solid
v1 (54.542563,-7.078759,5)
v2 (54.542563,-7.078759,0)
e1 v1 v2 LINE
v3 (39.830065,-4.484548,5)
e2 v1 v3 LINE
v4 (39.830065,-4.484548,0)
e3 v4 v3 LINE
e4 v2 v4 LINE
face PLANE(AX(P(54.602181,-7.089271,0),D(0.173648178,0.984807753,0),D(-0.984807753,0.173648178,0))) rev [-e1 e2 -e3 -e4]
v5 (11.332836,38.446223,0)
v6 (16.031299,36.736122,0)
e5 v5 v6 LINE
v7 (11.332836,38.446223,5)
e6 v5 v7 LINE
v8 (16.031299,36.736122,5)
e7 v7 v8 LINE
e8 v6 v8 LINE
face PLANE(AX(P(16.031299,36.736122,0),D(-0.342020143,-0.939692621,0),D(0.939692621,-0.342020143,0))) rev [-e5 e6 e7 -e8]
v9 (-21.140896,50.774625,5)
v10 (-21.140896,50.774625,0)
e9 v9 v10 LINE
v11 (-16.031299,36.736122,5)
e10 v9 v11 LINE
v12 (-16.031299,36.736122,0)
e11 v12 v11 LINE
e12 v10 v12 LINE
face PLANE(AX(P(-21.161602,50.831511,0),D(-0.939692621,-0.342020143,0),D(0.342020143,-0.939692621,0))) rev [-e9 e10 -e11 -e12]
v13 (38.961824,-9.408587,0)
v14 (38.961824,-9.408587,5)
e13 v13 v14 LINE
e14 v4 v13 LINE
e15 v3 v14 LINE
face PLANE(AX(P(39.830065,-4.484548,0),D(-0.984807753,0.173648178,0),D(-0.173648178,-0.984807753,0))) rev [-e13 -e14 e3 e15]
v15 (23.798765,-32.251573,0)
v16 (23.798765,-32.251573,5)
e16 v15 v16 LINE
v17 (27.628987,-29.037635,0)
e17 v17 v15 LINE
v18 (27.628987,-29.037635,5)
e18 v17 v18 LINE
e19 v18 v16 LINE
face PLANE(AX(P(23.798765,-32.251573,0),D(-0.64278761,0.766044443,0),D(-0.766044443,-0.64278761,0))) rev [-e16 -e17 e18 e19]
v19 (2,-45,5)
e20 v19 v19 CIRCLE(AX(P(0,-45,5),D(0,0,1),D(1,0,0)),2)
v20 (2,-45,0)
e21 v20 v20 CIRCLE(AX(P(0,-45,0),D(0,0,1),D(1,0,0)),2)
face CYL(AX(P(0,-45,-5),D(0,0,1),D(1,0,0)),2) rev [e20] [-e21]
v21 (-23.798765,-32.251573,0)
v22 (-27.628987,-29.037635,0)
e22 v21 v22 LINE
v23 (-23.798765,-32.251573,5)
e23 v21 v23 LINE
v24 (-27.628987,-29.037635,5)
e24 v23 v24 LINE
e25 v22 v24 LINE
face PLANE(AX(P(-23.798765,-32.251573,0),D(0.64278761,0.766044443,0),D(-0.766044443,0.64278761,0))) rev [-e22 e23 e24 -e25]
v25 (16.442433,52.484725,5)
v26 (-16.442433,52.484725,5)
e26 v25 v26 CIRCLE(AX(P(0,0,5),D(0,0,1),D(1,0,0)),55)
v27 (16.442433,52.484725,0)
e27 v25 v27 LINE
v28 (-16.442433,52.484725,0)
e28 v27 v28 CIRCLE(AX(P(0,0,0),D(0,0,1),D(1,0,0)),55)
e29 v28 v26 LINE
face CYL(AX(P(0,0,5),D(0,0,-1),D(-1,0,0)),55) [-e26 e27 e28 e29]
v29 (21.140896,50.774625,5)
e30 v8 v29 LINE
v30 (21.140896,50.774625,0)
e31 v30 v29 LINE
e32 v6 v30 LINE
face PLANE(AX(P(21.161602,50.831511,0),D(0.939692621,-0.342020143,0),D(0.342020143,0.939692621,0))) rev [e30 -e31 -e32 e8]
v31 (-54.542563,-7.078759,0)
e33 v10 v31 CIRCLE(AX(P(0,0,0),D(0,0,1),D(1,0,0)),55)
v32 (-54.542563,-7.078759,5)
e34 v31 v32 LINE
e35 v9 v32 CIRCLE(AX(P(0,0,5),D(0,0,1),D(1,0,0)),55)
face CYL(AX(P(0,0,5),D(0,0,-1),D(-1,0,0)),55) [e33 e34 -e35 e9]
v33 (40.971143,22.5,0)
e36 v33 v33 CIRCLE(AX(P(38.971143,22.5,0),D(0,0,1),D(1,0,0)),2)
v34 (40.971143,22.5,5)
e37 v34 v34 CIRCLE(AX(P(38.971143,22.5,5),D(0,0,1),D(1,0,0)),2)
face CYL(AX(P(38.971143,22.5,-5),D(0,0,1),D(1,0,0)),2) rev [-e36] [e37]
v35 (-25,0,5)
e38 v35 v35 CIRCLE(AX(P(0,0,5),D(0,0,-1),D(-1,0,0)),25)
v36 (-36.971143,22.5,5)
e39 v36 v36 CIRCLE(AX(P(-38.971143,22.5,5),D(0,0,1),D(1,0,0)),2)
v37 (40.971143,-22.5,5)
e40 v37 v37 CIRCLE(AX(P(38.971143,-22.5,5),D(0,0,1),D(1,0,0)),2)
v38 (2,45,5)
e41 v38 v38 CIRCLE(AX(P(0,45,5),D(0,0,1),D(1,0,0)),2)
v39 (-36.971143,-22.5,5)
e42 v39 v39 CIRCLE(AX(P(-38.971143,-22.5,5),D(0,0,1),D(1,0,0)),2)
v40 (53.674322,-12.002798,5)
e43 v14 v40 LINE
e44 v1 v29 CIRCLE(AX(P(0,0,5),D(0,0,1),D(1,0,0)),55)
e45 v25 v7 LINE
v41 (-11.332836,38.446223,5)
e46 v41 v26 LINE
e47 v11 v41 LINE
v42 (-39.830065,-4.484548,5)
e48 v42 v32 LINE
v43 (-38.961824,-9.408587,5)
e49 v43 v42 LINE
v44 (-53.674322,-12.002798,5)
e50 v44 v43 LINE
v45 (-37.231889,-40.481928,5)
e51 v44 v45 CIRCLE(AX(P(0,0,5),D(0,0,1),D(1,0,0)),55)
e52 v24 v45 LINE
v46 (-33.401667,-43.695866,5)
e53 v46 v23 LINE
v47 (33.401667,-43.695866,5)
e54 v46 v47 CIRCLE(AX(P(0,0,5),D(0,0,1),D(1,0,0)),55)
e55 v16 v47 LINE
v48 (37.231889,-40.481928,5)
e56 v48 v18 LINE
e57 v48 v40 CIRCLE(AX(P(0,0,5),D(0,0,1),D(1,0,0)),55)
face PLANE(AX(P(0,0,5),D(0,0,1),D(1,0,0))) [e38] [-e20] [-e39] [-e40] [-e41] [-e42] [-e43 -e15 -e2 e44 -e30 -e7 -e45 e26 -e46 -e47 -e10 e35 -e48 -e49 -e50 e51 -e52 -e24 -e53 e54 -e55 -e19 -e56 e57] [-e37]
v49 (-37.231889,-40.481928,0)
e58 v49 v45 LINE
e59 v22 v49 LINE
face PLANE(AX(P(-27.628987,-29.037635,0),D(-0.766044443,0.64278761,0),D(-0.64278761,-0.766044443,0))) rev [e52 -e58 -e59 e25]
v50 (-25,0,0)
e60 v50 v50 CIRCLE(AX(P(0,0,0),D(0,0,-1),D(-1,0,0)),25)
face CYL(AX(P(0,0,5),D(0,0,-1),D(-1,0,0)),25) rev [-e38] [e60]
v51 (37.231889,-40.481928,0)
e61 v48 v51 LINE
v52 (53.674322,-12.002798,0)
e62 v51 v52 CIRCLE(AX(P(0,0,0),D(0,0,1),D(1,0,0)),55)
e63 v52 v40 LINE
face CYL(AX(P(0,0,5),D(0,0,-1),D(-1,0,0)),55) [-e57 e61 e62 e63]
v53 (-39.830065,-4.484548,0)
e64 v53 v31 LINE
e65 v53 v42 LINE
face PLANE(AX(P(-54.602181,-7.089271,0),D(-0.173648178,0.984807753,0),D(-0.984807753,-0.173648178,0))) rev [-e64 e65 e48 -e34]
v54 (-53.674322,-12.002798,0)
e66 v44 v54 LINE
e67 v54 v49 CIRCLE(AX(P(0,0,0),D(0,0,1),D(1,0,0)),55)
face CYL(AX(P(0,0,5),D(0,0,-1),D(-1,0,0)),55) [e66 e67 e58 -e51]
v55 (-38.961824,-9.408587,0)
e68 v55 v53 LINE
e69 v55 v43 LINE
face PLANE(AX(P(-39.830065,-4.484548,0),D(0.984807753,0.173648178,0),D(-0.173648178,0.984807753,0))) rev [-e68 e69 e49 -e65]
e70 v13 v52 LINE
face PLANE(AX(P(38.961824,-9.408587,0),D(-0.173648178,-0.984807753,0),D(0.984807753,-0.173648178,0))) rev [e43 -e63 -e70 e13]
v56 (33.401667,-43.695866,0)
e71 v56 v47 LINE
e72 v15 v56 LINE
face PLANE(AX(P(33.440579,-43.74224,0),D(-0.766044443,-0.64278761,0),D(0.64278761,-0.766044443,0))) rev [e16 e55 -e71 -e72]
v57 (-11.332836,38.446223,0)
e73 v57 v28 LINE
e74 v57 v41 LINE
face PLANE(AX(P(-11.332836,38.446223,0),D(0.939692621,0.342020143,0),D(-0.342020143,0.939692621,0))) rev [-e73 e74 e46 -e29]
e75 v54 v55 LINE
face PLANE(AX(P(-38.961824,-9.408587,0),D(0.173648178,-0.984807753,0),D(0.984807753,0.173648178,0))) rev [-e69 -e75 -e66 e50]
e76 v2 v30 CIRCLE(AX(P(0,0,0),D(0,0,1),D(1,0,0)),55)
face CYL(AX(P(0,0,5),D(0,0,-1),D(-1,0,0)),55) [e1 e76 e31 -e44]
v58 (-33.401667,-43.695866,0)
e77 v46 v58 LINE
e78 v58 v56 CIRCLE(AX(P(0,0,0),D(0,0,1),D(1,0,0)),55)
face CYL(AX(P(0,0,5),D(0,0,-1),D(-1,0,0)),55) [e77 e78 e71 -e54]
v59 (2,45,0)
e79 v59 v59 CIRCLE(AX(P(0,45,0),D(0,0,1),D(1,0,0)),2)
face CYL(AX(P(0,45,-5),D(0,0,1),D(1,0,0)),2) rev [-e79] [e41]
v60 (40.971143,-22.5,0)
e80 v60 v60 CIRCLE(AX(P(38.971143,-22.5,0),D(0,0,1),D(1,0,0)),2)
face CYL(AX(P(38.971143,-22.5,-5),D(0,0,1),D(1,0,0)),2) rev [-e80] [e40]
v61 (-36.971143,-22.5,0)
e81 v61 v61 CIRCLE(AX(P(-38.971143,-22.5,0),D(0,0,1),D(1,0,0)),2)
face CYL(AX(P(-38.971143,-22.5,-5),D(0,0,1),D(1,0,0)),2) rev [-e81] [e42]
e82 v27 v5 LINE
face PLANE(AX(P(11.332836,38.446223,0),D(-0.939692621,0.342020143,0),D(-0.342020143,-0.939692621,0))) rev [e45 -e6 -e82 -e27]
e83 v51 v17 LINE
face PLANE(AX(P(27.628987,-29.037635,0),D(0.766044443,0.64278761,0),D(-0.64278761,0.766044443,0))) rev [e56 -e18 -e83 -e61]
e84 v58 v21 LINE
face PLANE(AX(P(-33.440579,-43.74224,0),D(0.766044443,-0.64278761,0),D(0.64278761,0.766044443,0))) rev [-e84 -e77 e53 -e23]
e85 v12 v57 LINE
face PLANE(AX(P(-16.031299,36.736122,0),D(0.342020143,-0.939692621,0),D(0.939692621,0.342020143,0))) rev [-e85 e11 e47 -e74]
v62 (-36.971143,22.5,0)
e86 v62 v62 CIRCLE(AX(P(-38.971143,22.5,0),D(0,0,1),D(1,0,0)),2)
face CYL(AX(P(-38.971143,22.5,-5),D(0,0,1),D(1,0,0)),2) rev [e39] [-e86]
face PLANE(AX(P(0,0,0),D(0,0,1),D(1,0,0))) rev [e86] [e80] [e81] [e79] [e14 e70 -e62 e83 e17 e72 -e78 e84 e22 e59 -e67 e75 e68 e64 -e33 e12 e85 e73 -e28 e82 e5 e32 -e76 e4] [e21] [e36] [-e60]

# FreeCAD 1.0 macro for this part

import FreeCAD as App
import Part
import Sketcher

V = App.Vector
Q = App.Units.Quantity


def add_polygon(sketch, points):
    """Adds a closed chain of lines whose ends are joined by coincident constraints."""
    first, n = sketch.GeometryCount, len(points)
    for a, b in zip(points, points[1:] + points[:1]):
        sketch.addGeometry(Part.LineSegment(App.Vector(*a, 0), App.Vector(*b, 0)), False)
    for i in range(n):
        sketch.addConstraint(Sketcher.Constraint("Coincident", first + i, 2, first + (i + 1) % n, 1))

doc = App.newDocument("Part")
body = doc.addObject("PartDesign::Body", "Body")

# Sketch on XY plane
sketch1 = body.newObject("Sketcher::SketchObject", "Sketch")
sketch1.AttachmentSupport = (doc.getObject("XY_Plane"), [""])
sketch1.MapMode = "FlatFace"
sketch1.addGeometry(Part.Circle(V(0, 0, 0), V(0, 0, 1), 55), False)
sketch1.addConstraint([
    Sketcher.Constraint("Coincident", 0, 3, -1, 1),
    Sketcher.Constraint("Diameter", 0, 110.0),
])
pad1 = body.newObject("PartDesign::Pad", "Pad")
pad1.Profile = sketch1
pad1.Length = 5

# Sketch on XY plane
sketch2 = body.newObject("Sketcher::SketchObject", "Sketch001")
sketch2.AttachmentSupport = (doc.getObject("XY_Plane"), [""])
sketch2.MapMode = "FlatFace"
sketch2.AttachmentOffset = App.Placement(V(0, 0, 5), App.Rotation())
add_polygon(sketch2, [(-21.2, 50.8), (-16, 36.7), (-11.3, 38.4), (-16.5, 52.5)])  # lines 0-3
add_polygon(sketch2, [(11.3, 38.4), (16, 36.7), (21.2, 50.8), (16.5, 52.5)])  # lines 4-7
add_polygon(sketch2, [(54.6, -7.1), (39.8, -4.5), (39, -9.4), (53.7, -12)])  # lines 8-11
add_polygon(sketch2, [(37.3, -40.5), (27.6, -29), (23.8, -32.3), (33.4, -43.7)])  # lines 12-15
add_polygon(sketch2, [(-33.4, -43.7), (-23.8, -32.3), (-27.6, -29), (-37.3, -40.5)])  # lines 16-19
add_polygon(sketch2, [(-53.7, -12), (-39, -9.4), (-39.8, -4.5), (-54.6, -7.1)])  # lines 20-23
sketch2.addConstraint([
    Sketcher.Constraint("Symmetric", 0, 2, 4, 2, -2),
    Sketcher.Constraint("Symmetric", 3, 2, 5, 2, -2),
    Sketcher.Constraint("Symmetric", 2, 2, 6, 2, -2),
    Sketcher.Constraint("Symmetric", 1, 2, 7, 2, -2),
    Sketcher.Constraint("Symmetric", 13, 2, 16, 2, -2),
    Sketcher.Constraint("Symmetric", 12, 2, 17, 2, -2),
    Sketcher.Constraint("Symmetric", 15, 2, 18, 2, -2),
    Sketcher.Constraint("Symmetric", 14, 2, 19, 2, -2),
    Sketcher.Constraint("Symmetric", 9, 2, 20, 2, -2),
    Sketcher.Constraint("Symmetric", 8, 2, 21, 2, -2),
    Sketcher.Constraint("Symmetric", 11, 2, 22, 2, -2),
    Sketcher.Constraint("Symmetric", 10, 2, 23, 2, -2),
    Sketcher.Constraint("Perpendicular", 0, 1),
    Sketcher.Constraint("Perpendicular", 1, 2),
    Sketcher.Constraint("Perpendicular", 2, 3),
    Sketcher.Constraint("Perpendicular", 8, 9),
    Sketcher.Constraint("Perpendicular", 9, 10),
    Sketcher.Constraint("Perpendicular", 10, 11),
    Sketcher.Constraint("Perpendicular", 12, 13),
    Sketcher.Constraint("Perpendicular", 13, 14),
    Sketcher.Constraint("Perpendicular", 14, 15),
    Sketcher.Constraint("Equal", 7, 8),
    Sketcher.Constraint("Equal", 6, 9),
    Sketcher.Constraint("Equal", 10, 12),
    Sketcher.Constraint("Equal", 11, 13),
    Sketcher.Constraint("Angle", 0, Q("-70 deg")),
    Sketcher.Constraint("Angle", 8, Q("170 deg")),
    Sketcher.Constraint("Angle", 12, Q("130 deg")),
    Sketcher.Constraint("Distance", 0, 15.0),
    Sketcher.Constraint("Distance", 1, 5.0),
    Sketcher.Constraint("DistanceX", 0, 2, -1, 1, 16.031299),
    Sketcher.Constraint("DistanceX", -1, 1, 15, 2, 37.270802),
    Sketcher.Constraint("DistanceX", 1, 2, 8, 2, 51.162901),
    Sketcher.Constraint("DistanceY", 9, 2, 5, 2, 60.240099),
    Sketcher.Constraint("DistanceY", -1, 1, 0, 2, 36.736122),
    Sketcher.Constraint("DistanceY", 14, 2, -1, 1, 43.74224),
])
pocket1 = body.newObject("PartDesign::Pocket", "Pocket")
pocket1.Profile = sketch2
pocket1.Type = "ThroughAll"

# Sketch on XY plane
sketch3 = body.newObject("Sketcher::SketchObject", "Sketch002")
sketch3.AttachmentSupport = (doc.getObject("XY_Plane"), [""])
sketch3.MapMode = "FlatFace"
sketch3.AttachmentOffset = App.Placement(V(0, 0, 5), App.Rotation())
sketch3.addGeometry([
    Part.Circle(V(0, 45, 0), V(0, 0, 1), 2),  # 0
    Part.Circle(V(0, -45, 0), V(0, 0, 1), 2),  # 1
    Part.Circle(V(39, -22.5, 0), V(0, 0, 1), 2),  # 2
    Part.Circle(V(-39, 22.5, 0), V(0, 0, 1), 2),  # 3
    Part.Circle(V(-39, -22.5, 0), V(0, 0, 1), 2),  # 4
    Part.Circle(V(39, 22.5, 0), V(0, 0, 1), 2),  # 5
], False)
sketch3.addConstraint([
    Sketcher.Constraint("Equal", 0, 1),
    Sketcher.Constraint("Equal", 1, 2),
    Sketcher.Constraint("Equal", 2, 3),
    Sketcher.Constraint("Equal", 3, 4),
    Sketcher.Constraint("Equal", 4, 5),
    Sketcher.Constraint("Symmetric", 0, 3, 1, 3, -1, 1),
    Sketcher.Constraint("Symmetric", 2, 3, 3, 3, -1, 1),
    Sketcher.Constraint("Symmetric", 4, 3, 5, 3, -1, 1),
    Sketcher.Constraint("Symmetric", 2, 3, 4, 3, -2),
    Sketcher.Constraint("PointOnObject", 0, 3, -2),
    Sketcher.Constraint("Diameter", 0, 4.0),
    Sketcher.Constraint("DistanceY", -1, 1, 0, 3, 45.0),
    Sketcher.Constraint("DistanceY", 2, 3, 3, 3, 45.0),
    Sketcher.Constraint("DistanceX", -1, 1, 2, 3, 38.971143),
])
pocket2 = body.newObject("PartDesign::Pocket", "Pocket001")
pocket2.Profile = sketch3
pocket2.Length = 10

# Sketch on XY plane
sketch4 = body.newObject("Sketcher::SketchObject", "Sketch003")
sketch4.AttachmentSupport = (doc.getObject("XY_Plane"), [""])
sketch4.MapMode = "FlatFace"
sketch4.addGeometry(Part.Circle(V(0, 0, 0), V(0, 0, 1), 25), False)
sketch4.addConstraint([
    Sketcher.Constraint("Coincident", 0, 3, -1, 1),
    Sketcher.Constraint("Diameter", 0, 50.0),
])
pocket3 = body.newObject("PartDesign::Pocket", "Pocket002")
pocket3.Profile = sketch4
pocket3.Type = "ThroughAll"
pocket3.Reversed = True

doc.recompute()
